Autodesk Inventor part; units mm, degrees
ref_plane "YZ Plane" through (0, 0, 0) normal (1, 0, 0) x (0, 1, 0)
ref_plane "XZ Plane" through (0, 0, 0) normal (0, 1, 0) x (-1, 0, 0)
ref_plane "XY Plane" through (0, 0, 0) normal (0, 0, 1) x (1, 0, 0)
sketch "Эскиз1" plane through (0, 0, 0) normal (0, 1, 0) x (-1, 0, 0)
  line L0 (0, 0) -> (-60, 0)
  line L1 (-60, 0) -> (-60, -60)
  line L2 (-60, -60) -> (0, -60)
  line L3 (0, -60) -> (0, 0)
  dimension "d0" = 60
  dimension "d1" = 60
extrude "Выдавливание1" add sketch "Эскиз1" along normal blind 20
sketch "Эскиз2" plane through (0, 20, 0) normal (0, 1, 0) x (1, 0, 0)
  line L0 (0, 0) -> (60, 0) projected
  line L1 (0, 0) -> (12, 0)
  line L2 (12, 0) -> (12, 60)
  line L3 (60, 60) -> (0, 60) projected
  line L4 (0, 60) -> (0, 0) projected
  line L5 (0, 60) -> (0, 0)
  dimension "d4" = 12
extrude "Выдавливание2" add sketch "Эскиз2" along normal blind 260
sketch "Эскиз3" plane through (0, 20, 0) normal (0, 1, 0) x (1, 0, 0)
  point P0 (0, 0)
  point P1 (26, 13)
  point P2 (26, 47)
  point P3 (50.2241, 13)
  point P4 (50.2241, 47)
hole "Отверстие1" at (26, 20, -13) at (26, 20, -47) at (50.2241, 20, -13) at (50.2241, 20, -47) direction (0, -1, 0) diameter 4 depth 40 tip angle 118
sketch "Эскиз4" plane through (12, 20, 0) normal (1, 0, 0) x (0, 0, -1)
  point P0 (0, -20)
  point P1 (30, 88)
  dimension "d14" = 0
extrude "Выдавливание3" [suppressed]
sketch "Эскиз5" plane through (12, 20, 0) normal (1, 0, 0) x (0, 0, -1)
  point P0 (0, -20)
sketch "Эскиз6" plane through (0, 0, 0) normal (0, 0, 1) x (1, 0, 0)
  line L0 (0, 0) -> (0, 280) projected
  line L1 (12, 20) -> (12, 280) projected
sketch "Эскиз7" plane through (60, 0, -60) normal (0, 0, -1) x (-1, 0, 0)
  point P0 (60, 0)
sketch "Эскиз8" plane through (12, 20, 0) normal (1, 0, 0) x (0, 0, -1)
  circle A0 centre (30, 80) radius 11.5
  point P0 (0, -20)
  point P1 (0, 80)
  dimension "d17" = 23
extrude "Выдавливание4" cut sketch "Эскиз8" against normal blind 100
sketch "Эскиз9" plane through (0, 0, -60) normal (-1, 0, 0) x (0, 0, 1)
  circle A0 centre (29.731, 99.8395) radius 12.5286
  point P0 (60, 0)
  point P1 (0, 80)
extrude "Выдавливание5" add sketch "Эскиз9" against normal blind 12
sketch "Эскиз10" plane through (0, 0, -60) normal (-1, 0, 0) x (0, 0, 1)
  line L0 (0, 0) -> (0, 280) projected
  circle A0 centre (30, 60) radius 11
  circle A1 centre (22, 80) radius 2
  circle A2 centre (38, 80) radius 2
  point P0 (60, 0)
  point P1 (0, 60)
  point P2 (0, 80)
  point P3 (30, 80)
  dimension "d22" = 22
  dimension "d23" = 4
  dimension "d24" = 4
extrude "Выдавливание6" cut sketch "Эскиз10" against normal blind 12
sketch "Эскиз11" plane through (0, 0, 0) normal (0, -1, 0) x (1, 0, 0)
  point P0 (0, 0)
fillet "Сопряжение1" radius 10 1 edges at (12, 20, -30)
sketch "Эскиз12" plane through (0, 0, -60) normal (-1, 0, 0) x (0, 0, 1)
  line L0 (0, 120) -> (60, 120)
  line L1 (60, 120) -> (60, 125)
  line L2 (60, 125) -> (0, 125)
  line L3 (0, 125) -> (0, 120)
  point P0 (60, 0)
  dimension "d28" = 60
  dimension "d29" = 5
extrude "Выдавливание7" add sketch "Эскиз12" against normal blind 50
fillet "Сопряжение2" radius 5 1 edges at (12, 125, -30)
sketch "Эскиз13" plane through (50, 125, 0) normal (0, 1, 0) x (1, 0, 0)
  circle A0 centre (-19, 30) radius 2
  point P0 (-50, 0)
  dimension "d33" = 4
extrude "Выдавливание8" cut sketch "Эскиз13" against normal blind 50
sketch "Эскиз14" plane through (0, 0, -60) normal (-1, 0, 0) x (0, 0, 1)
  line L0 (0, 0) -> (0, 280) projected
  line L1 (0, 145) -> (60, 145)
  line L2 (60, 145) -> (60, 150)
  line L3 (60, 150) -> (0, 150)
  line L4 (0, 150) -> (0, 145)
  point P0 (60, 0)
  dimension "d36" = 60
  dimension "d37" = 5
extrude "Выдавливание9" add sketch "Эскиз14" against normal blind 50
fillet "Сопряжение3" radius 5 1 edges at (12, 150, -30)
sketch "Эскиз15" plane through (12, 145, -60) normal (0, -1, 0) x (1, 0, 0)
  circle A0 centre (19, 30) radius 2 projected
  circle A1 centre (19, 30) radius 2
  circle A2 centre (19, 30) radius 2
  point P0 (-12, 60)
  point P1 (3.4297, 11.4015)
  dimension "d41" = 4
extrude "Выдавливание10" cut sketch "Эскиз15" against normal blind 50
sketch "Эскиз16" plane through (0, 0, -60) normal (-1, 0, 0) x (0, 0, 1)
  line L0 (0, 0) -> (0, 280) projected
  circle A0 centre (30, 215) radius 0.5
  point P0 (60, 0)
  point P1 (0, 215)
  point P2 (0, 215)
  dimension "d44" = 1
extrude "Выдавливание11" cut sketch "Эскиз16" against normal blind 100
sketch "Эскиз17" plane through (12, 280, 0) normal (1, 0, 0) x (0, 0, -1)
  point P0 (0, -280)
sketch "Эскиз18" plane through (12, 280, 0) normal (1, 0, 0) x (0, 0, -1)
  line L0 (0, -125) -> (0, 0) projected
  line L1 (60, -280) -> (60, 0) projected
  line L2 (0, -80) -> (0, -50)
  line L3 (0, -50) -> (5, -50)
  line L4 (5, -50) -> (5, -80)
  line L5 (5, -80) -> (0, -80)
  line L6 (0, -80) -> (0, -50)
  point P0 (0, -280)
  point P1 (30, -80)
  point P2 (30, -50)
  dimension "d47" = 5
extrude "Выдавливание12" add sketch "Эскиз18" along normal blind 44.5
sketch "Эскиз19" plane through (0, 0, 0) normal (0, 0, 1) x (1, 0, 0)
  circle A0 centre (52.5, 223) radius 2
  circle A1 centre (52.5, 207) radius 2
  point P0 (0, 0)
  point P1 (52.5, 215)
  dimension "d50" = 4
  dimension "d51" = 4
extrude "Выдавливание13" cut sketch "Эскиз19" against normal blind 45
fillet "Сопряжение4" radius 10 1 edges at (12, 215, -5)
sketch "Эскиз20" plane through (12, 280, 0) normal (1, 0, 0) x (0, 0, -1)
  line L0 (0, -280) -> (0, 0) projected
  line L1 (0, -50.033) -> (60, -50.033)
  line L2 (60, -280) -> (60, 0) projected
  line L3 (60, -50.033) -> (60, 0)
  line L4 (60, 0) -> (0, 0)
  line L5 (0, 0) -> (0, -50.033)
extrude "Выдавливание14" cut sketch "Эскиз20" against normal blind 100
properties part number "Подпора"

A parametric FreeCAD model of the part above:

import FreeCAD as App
import Part
import Sketcher
Q = App.Units.Quantity


def edges_at(feature, points):
    """Names of the edges that pass closest to the given points."""
    edges = feature.Shape.Edges
    near = lambda p: min(range(len(edges)), key=lambda i: edges[i].distToShape(Part.Vertex(*p))[0])
    return sorted({f"Edge{near(p) + 1}" for p in points})


def add_polygon(sketch, points):
    """Adds a closed chain of lines whose ends are joined by coincident constraints."""
    first, n = sketch.GeometryCount, len(points)
    for a, b in zip(points, points[1:] + points[:1]):
        sketch.addGeometry(Part.LineSegment(App.Vector(*a, 0), App.Vector(*b, 0)), False)
    for i in range(n):
        sketch.addConstraint(Sketcher.Constraint("Coincident", first + i, 2, first + (i + 1) % n, 1))

doc = App.newDocument("Part")
body = doc.addObject("PartDesign::Body", "Body")

sketch1 = doc.addObject("Sketcher::SketchObject", "Sketch")
body.addObject(sketch1)
sketch1.AttachmentSupport = (doc.XZ_Plane, [""])
sketch1.MapMode = "FlatFace"
add_polygon(sketch1, [(0, -60), (0, 0), (60, 0), (60, -60)])
sketch1.addConstraint(Sketcher.Constraint("Vertical", 0))
sketch1.addConstraint(Sketcher.Constraint("Horizontal", 1))
sketch1.addConstraint(Sketcher.Constraint("Vertical", 2))
sketch1.addConstraint(Sketcher.Constraint("Horizontal", 3))
sketch1.addConstraint(Sketcher.Constraint("Coincident", 0, 2, -1, 1))
sketch1.addConstraint(Sketcher.Constraint("Equal", 3, 0))
sketch1.addConstraint(Sketcher.Constraint("DistanceX", 1, 1, 1, 2, Q("60 mm")))
pad1 = doc.addObject("PartDesign::Pad", "Pad")
body.addObject(pad1)
pad1.Profile = sketch1
pad1.Length = 20
pad1.Reversed = True

sketch2 = doc.addObject("Sketcher::SketchObject", "Sketch001")
body.addObject(sketch2)
sketch2.AttachmentSupport = (doc.XZ_Plane, [""])
sketch2.MapMode = "FlatFace"
sketch2.AttachmentOffset = App.Placement(App.Vector(0, 0, -20), App.Rotation())
add_polygon(sketch2, [(0, -60), (0, 0), (12, 0), (12, -60)])
sketch2.addConstraint(Sketcher.Constraint("Vertical", 0))
sketch2.addConstraint(Sketcher.Constraint("Horizontal", 1))
sketch2.addConstraint(Sketcher.Constraint("Vertical", 2))
sketch2.addConstraint(Sketcher.Constraint("Horizontal", 3))
sketch2.addConstraint(Sketcher.Constraint("Coincident", 0, 2, -1, 1))
sketch2.addConstraint(Sketcher.Constraint("DistanceX", 1, 1, 1, 2, Q("12 mm")))
sketch2.addConstraint(Sketcher.Constraint("DistanceY", 0, 1, 0, 2, Q("60 mm")))
pad2 = doc.addObject("PartDesign::Pad", "Pad001")
body.addObject(pad2)
pad2.Profile = sketch2
pad2.Length = 260
pad2.Reversed = True

sketch3 = doc.addObject("Sketcher::SketchObject", "Sketch002")
body.addObject(sketch3)
sketch3.AttachmentSupport = (doc.XZ_Plane, [""])
sketch3.MapMode = "FlatFace"
sketch3.AttachmentOffset = App.Placement(App.Vector(0, 0, -20), App.Rotation())
sketch3.addGeometry(Part.Circle(App.Vector(26, -13, 0), App.Vector(0, 0, 1), 2), False)
sketch3.addGeometry(Part.Circle(App.Vector(26, -47, 0), App.Vector(0, 0, 1), 2), False)
sketch3.addGeometry(Part.Circle(App.Vector(50.2, -13, 0), App.Vector(0, 0, 1), 2), False)
sketch3.addGeometry(Part.Circle(App.Vector(50.2, -47, 0), App.Vector(0, 0, 1), 2), False)
sketch3.addConstraint(Sketcher.Constraint("Equal", 0, 1))
sketch3.addConstraint(Sketcher.Constraint("Equal", 1, 2))
sketch3.addConstraint(Sketcher.Constraint("Equal", 2, 3))
sketch3.addConstraint(Sketcher.Constraint("Horizontal", 0, 3, 2, 3))
sketch3.addConstraint(Sketcher.Constraint("Horizontal", 1, 3, 3, 3))
sketch3.addConstraint(Sketcher.Constraint("Vertical", 0, 3, 1, 3))
sketch3.addConstraint(Sketcher.Constraint("Vertical", 2, 3, 3, 3))
sketch3.addConstraint(Sketcher.Constraint("Diameter", 0, Q("4 mm")))
sketch3.addConstraint(Sketcher.Constraint("DistanceX", -1, 1, 0, 3, Q("26 mm")))
sketch3.addConstraint(Sketcher.Constraint("DistanceY", 0, 3, -1, 1, Q("13 mm")))
sketch3.addConstraint(Sketcher.Constraint("DistanceY", 1, 3, -1, 1, Q("47 mm")))
sketch3.addConstraint(Sketcher.Constraint("DistanceX", -1, 1, 2, 3, Q("50.224 mm")))
doc.recompute()
hole = doc.addObject("PartDesign::Hole", "Hole")
body.addObject(hole)
hole.Profile = sketch3
hole.ThreadType = "None"
hole.Diameter = 4
hole.DepthType = "Dimension"
hole.Depth = 40
hole.DrillPoint = "Angled"
hole.DrillPointAngle = 118
hole.Reversed = True

sketch4 = doc.addObject("Sketcher::SketchObject", "Sketch003")
body.addObject(sketch4)
sketch4.AttachmentSupport = (doc.YZ_Plane, [""])
sketch4.MapMode = "FlatFace"
sketch4.AttachmentOffset = App.Placement(App.Vector(0, 0, 12), App.Rotation())
sketch4.addGeometry(Part.Circle(App.Vector(100, -30, 0), App.Vector(0, 0, 1), 12), False)
sketch4.addConstraint(Sketcher.Constraint("Diameter", 0, Q("23 mm")))
sketch4.addConstraint(Sketcher.Constraint("DistanceX", -1, 1, 0, 3, Q("100 mm")))
sketch4.addConstraint(Sketcher.Constraint("DistanceY", 0, 3, -1, 1, Q("30 mm")))
pocket1 = doc.addObject("PartDesign::Pocket", "Pocket")
body.addObject(pocket1)
pocket1.Profile = sketch4
pocket1.Length = 100

sketch5 = doc.addObject("Sketcher::SketchObject", "Sketch004")
body.addObject(sketch5)
sketch5.AttachmentSupport = (doc.YZ_Plane, [""])
sketch5.MapMode = "FlatFace"
sketch5.addGeometry(Part.Circle(App.Vector(100, -30, 0), App.Vector(0, 0, 1), 13), False)
sketch5.addConstraint(Sketcher.Constraint("Diameter", 0, Q("25.0572 mm")))
sketch5.addConstraint(Sketcher.Constraint("DistanceY", 0, 3, -1, 1, Q("30.269 mm")))
sketch5.addConstraint(Sketcher.Constraint("DistanceX", -1, 1, 0, 3, Q("99.8395 mm")))
pad3 = doc.addObject("PartDesign::Pad", "Pad002")
body.addObject(pad3)
pad3.Profile = sketch5
pad3.Length = 12

sketch6 = doc.addObject("Sketcher::SketchObject", "Sketch005")
body.addObject(sketch6)
sketch6.AttachmentSupport = (doc.YZ_Plane, [""])
sketch6.MapMode = "FlatFace"
sketch6.addGeometry(Part.Circle(App.Vector(60, -30, 0), App.Vector(0, 0, 1), 11), False)
sketch6.addGeometry(Part.Circle(App.Vector(80, -38, 0), App.Vector(0, 0, 1), 2), False)
sketch6.addGeometry(Part.Circle(App.Vector(80, -22, 0), App.Vector(0, 0, 1), 2), False)
sketch6.addConstraint(Sketcher.Constraint("Equal", 1, 2))
sketch6.addConstraint(Sketcher.Constraint("Vertical", 1, 3, 2, 3))
sketch6.addConstraint(Sketcher.Constraint("Diameter", 0, Q("22 mm")))
sketch6.addConstraint(Sketcher.Constraint("Diameter", 1, Q("4 mm")))
sketch6.addConstraint(Sketcher.Constraint("DistanceY", 2, 3, -1, 1, Q("22 mm")))
sketch6.addConstraint(Sketcher.Constraint("DistanceX", -1, 1, 0, 3, Q("60 mm")))
sketch6.addConstraint(Sketcher.Constraint("DistanceY", 0, 3, -1, 1, Q("30 mm")))
sketch6.addConstraint(Sketcher.Constraint("DistanceX", -1, 1, 1, 3, Q("80 mm")))
sketch6.addConstraint(Sketcher.Constraint("DistanceY", 1, 3, -1, 1, Q("38 mm")))
pocket2 = doc.addObject("PartDesign::Pocket", "Pocket001")
body.addObject(pocket2)
pocket2.Profile = sketch6
pocket2.Length = 12
pocket2.Reversed = True
doc.recompute()

fillet = doc.addObject("PartDesign::Fillet", "Fillet")
body.addObject(fillet)
fillet.Base = (pocket2, edges_at(pocket2, [(12, 20, -30)]))
fillet.Radius = 10

sketch7 = doc.addObject("Sketcher::SketchObject", "Sketch006")
body.addObject(sketch7)
sketch7.AttachmentSupport = (doc.YZ_Plane, [""])
sketch7.MapMode = "FlatFace"
add_polygon(sketch7, [(125, -60), (120, -60), (120, 0), (125, 0)])
sketch7.addConstraint(Sketcher.Constraint("Horizontal", 0))
sketch7.addConstraint(Sketcher.Constraint("Vertical", 1))
sketch7.addConstraint(Sketcher.Constraint("Horizontal", 2))
sketch7.addConstraint(Sketcher.Constraint("Vertical", 3))
sketch7.addConstraint(Sketcher.Constraint("PointOnObject", 1, 2, -1))
sketch7.addConstraint(Sketcher.Constraint("DistanceX", 0, 2, 0, 1, Q("5 mm")))
sketch7.addConstraint(Sketcher.Constraint("DistanceY", 1, 1, 1, 2, Q("60 mm")))
sketch7.addConstraint(Sketcher.Constraint("DistanceX", -1, 1, 0, 2, Q("120 mm")))
pad4 = doc.addObject("PartDesign::Pad", "Pad003")
body.addObject(pad4)
pad4.Profile = sketch7
pad4.Length = 50
doc.recompute()

fillet2 = doc.addObject("PartDesign::Fillet", "Fillet001")
body.addObject(fillet2)
fillet2.Base = (pad4, edges_at(pad4, [(12, 125, -30)]))
fillet2.Radius = 5

sketch8 = doc.addObject("Sketcher::SketchObject", "Sketch007")
body.addObject(sketch8)
sketch8.AttachmentSupport = (doc.XZ_Plane, [""])
sketch8.MapMode = "FlatFace"
sketch8.AttachmentOffset = App.Placement(App.Vector(0, 0, -125), App.Rotation())
sketch8.addGeometry(Part.Circle(App.Vector(31, -30, 0), App.Vector(0, 0, 1), 2), False)
sketch8.addConstraint(Sketcher.Constraint("Diameter", 0, Q("4 mm")))
sketch8.addConstraint(Sketcher.Constraint("DistanceX", -1, 1, 0, 3, Q("31 mm")))
sketch8.addConstraint(Sketcher.Constraint("DistanceY", 0, 3, -1, 1, Q("30 mm")))
pocket3 = doc.addObject("PartDesign::Pocket", "Pocket002")
body.addObject(pocket3)
pocket3.Profile = sketch8
pocket3.Length = 50
pocket3.Reversed = True

sketch9 = doc.addObject("Sketcher::SketchObject", "Sketch008")
body.addObject(sketch9)
sketch9.AttachmentSupport = (doc.YZ_Plane, [""])
sketch9.MapMode = "FlatFace"
add_polygon(sketch9, [(150, -60), (145, -60), (145, 0), (150, 0)])
sketch9.addConstraint(Sketcher.Constraint("Horizontal", 0))
sketch9.addConstraint(Sketcher.Constraint("Vertical", 1))
sketch9.addConstraint(Sketcher.Constraint("Horizontal", 2))
sketch9.addConstraint(Sketcher.Constraint("Vertical", 3))
sketch9.addConstraint(Sketcher.Constraint("PointOnObject", 1, 2, -1))
sketch9.addConstraint(Sketcher.Constraint("DistanceX", 0, 2, 0, 1, Q("5 mm")))
sketch9.addConstraint(Sketcher.Constraint("DistanceY", 1, 1, 1, 2, Q("60 mm")))
sketch9.addConstraint(Sketcher.Constraint("DistanceX", -1, 1, 0, 2, Q("145 mm")))
pad5 = doc.addObject("PartDesign::Pad", "Pad004")
body.addObject(pad5)
pad5.Profile = sketch9
pad5.Length = 50
doc.recompute()

fillet3 = doc.addObject("PartDesign::Fillet", "Fillet002")
body.addObject(fillet3)
fillet3.Base = (pad5, edges_at(pad5, [(12, 150, -30)]))
fillet3.Radius = 5

sketch10 = doc.addObject("Sketcher::SketchObject", "Sketch009")
body.addObject(sketch10)
sketch10.AttachmentSupport = (doc.XZ_Plane, [""])
sketch10.MapMode = "FlatFace"
sketch10.AttachmentOffset = App.Placement(App.Vector(0, 0, -145), App.Rotation())
sketch10.addGeometry(Part.Circle(App.Vector(31, -30, 0), App.Vector(0, 0, 1), 2), False)
sketch10.addConstraint(Sketcher.Constraint("Diameter", 0, Q("4 mm")))
sketch10.addConstraint(Sketcher.Constraint("DistanceX", -1, 1, 0, 3, Q("31 mm")))
sketch10.addConstraint(Sketcher.Constraint("DistanceY", 0, 3, -1, 1, Q("30 mm")))
pocket4 = doc.addObject("PartDesign::Pocket", "Pocket003")
body.addObject(pocket4)
pocket4.Profile = sketch10
pocket4.Length = 50

sketch11 = doc.addObject("Sketcher::SketchObject", "Sketch010")
body.addObject(sketch11)
sketch11.AttachmentSupport = (doc.YZ_Plane, [""])
sketch11.MapMode = "FlatFace"
sketch11.addGeometry(Part.Circle(App.Vector(215, -30, 0), App.Vector(0, 0, 1), 0.5), False)
sketch11.addConstraint(Sketcher.Constraint("Diameter", 0, Q("1 mm")))
sketch11.addConstraint(Sketcher.Constraint("DistanceX", -1, 1, 0, 3, Q("215 mm")))
sketch11.addConstraint(Sketcher.Constraint("DistanceY", 0, 3, -1, 1, Q("30 mm")))
pocket5 = doc.addObject("PartDesign::Pocket", "Pocket004")
body.addObject(pocket5)
pocket5.Profile = sketch11
pocket5.Length = 100
pocket5.Reversed = True

sketch12 = doc.addObject("Sketcher::SketchObject", "Sketch011")
body.addObject(sketch12)
sketch12.AttachmentSupport = (doc.YZ_Plane, [""])
sketch12.MapMode = "FlatFace"
sketch12.AttachmentOffset = App.Placement(App.Vector(0, 0, 12), App.Rotation())
add_polygon(sketch12, [(230, 0), (200, 0), (200, -5), (230, -5)])
sketch12.addConstraint(Sketcher.Constraint("Horizontal", 0))
sketch12.addConstraint(Sketcher.Constraint("Vertical", 1))
sketch12.addConstraint(Sketcher.Constraint("Horizontal", 2))
sketch12.addConstraint(Sketcher.Constraint("Vertical", 3))
sketch12.addConstraint(Sketcher.Constraint("PointOnObject", 0, 2, -1))
sketch12.addConstraint(Sketcher.Constraint("DistanceY", 1, 2, 1, 1, Q("5 mm")))
sketch12.addConstraint(Sketcher.Constraint("DistanceX", 0, 2, 0, 1, Q("30 mm")))
sketch12.addConstraint(Sketcher.Constraint("DistanceX", -1, 1, 0, 2, Q("200 mm")))
pad6 = doc.addObject("PartDesign::Pad", "Pad005")
body.addObject(pad6)
pad6.Profile = sketch12
pad6.Length = 44.5

sketch13 = doc.addObject("Sketcher::SketchObject", "Sketch012")
body.addObject(sketch13)
sketch13.AttachmentSupport = (doc.XY_Plane, [""])
sketch13.MapMode = "FlatFace"
sketch13.addGeometry(Part.Circle(App.Vector(52.5, 223, 0), App.Vector(0, 0, 1), 2), False)
sketch13.addGeometry(Part.Circle(App.Vector(52.5, 207, 0), App.Vector(0, 0, 1), 2), False)
sketch13.addConstraint(Sketcher.Constraint("Equal", 0, 1))
sketch13.addConstraint(Sketcher.Constraint("Vertical", 0, 3, 1, 3))
sketch13.addConstraint(Sketcher.Constraint("Diameter", 0, Q("4 mm")))
sketch13.addConstraint(Sketcher.Constraint("DistanceY", -1, 1, 0, 3, Q("223 mm")))
sketch13.addConstraint(Sketcher.Constraint("DistanceY", -1, 1, 1, 3, Q("207 mm")))
sketch13.addConstraint(Sketcher.Constraint("DistanceX", -1, 1, 0, 3, Q("52.5 mm")))
pocket6 = doc.addObject("PartDesign::Pocket", "Pocket005")
body.addObject(pocket6)
pocket6.Profile = sketch13
pocket6.Length = 45
doc.recompute()

fillet4 = doc.addObject("PartDesign::Fillet", "Fillet003")
body.addObject(fillet4)
fillet4.Base = (pocket6, edges_at(pocket6, [(12, 215, -5)]))
fillet4.Radius = 10

sketch14 = doc.addObject("Sketcher::SketchObject", "Sketch013")
body.addObject(sketch14)
sketch14.AttachmentSupport = (doc.YZ_Plane, [""])
sketch14.MapMode = "FlatFace"
sketch14.AttachmentOffset = App.Placement(App.Vector(0, 0, 12), App.Rotation())
add_polygon(sketch14, [(280, 0), (230, 0), (230, -60), (280, -60)])
sketch14.addConstraint(Sketcher.Constraint("Horizontal", 0))
sketch14.addConstraint(Sketcher.Constraint("Vertical", 1))
sketch14.addConstraint(Sketcher.Constraint("Horizontal", 2))
sketch14.addConstraint(Sketcher.Constraint("Vertical", 3))
sketch14.addConstraint(Sketcher.Constraint("PointOnObject", 0, 2, -1))
sketch14.addConstraint(Sketcher.Constraint("DistanceY", 1, 2, 1, 1, Q("60 mm")))
sketch14.addConstraint(Sketcher.Constraint("DistanceX", -1, 1, 2, 2, Q("280 mm")))
sketch14.addConstraint(Sketcher.Constraint("DistanceX", 0, 2, 0, 1, Q("50.033 mm")))
pocket7 = doc.addObject("PartDesign::Pocket", "Pocket006")
body.addObject(pocket7)
pocket7.Profile = sketch14
pocket7.Length = 100

doc.recompute()
